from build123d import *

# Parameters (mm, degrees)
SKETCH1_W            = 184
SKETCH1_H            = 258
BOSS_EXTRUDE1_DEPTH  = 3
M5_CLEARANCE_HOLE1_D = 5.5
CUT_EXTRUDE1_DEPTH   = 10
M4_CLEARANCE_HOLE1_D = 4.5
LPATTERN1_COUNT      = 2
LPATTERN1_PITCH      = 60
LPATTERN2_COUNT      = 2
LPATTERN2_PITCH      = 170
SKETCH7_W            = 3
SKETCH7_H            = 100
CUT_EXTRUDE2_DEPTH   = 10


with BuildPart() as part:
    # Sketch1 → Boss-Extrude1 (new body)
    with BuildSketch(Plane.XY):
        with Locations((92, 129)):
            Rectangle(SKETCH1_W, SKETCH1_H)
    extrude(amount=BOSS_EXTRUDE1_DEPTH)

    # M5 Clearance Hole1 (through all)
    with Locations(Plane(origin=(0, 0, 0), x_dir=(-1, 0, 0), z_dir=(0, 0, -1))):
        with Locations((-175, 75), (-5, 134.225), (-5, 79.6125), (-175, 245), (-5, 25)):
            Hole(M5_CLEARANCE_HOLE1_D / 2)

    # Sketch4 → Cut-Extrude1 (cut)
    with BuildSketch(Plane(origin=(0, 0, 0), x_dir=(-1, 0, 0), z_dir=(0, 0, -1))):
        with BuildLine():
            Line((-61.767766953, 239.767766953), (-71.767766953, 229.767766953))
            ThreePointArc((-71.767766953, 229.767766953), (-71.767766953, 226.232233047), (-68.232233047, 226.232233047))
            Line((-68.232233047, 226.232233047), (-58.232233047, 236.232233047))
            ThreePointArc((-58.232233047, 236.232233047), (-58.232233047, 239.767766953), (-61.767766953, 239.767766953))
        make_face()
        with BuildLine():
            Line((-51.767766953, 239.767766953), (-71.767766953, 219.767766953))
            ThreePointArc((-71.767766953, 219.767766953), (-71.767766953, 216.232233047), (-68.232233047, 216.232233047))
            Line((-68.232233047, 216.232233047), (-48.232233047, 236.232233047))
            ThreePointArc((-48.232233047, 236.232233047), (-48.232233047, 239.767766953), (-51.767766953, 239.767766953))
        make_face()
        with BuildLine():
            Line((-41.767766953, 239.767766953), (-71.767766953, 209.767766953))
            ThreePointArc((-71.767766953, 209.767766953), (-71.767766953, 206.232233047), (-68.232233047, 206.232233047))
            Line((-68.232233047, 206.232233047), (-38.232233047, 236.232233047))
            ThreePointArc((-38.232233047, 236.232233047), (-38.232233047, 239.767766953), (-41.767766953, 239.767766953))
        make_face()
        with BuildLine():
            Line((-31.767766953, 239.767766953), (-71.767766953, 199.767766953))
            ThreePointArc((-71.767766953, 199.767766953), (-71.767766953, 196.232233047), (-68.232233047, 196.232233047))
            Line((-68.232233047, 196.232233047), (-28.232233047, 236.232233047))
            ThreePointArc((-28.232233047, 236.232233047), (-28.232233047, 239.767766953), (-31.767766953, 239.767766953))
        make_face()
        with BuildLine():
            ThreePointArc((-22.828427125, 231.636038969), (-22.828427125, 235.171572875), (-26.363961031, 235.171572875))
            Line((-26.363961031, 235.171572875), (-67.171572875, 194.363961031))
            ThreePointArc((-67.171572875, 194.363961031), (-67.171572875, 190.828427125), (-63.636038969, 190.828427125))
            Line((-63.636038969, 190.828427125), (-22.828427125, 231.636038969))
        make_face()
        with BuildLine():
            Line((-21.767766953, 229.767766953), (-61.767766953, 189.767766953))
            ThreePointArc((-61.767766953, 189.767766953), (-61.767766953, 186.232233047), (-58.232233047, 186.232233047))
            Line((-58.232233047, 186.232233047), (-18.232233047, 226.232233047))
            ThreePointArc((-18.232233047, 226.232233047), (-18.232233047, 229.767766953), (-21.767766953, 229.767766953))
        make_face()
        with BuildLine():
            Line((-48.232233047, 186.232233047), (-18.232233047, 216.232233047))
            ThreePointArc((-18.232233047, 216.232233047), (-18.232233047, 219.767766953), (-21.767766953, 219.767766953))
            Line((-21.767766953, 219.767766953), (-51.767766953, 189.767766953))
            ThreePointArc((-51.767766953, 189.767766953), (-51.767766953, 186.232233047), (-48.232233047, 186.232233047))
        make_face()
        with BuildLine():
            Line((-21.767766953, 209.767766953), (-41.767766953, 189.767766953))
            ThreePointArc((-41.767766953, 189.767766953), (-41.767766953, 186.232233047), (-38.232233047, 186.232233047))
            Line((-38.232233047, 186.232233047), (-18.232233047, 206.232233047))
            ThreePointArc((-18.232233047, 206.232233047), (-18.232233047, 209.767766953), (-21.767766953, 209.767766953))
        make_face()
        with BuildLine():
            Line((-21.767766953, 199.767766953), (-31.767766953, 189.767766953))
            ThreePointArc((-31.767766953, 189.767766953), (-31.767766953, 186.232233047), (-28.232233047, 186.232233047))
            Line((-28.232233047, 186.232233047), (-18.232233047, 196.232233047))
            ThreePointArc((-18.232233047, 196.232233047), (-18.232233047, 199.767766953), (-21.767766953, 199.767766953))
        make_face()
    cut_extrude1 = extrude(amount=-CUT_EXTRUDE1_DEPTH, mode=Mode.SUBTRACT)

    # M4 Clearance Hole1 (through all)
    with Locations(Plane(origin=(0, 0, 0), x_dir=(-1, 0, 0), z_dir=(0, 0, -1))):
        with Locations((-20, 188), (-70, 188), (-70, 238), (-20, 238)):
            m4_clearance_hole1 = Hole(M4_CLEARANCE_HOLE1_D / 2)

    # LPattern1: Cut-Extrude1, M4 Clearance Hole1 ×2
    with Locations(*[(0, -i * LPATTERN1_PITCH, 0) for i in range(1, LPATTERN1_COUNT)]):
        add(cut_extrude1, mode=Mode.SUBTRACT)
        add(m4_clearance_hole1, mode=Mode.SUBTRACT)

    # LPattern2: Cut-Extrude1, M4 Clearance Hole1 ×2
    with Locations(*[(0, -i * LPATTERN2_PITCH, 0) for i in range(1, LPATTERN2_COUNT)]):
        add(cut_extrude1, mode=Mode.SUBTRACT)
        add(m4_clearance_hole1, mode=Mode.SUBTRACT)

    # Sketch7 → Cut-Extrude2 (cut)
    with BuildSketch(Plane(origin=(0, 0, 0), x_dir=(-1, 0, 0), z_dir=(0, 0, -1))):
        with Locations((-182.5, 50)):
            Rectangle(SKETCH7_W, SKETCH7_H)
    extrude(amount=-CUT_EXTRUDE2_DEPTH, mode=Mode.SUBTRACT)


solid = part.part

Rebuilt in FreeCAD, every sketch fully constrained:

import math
import FreeCAD as App
import Part
import Sketcher
from FreeCAD import Vector
Q = App.Units.Quantity


def add_polygon(sketch, points):
    """Adds a closed chain of lines whose ends are joined by coincident constraints."""
    first, n = sketch.GeometryCount, len(points)
    for a, b in zip(points, points[1:] + points[:1]):
        sketch.addGeometry(Part.LineSegment(App.Vector(*a, 0), App.Vector(*b, 0)), False)
    for i in range(n):
        sketch.addConstraint(Sketcher.Constraint("Coincident", first + i, 2, first + (i + 1) % n, 1))

doc = App.newDocument("Part")
params = doc.addObject("Spreadsheet::Sheet", "Params")
for row, (alias, value) in enumerate([
    ("sketch1_width", "184 mm"),
    ("sketch1_height", "258 mm"),
    ("pad1_length", "3 mm"),
    ("sketch2_diameter", "5.5 mm"),
    ("hole_diameter", "5.5 mm"),
    ("sketch3_radius", "2.5 mm"),
    ("pocket1_length", "10 mm"),
    ("sketch4_diameter", "4.5 mm"),
    ("hole2_diameter", "4.5 mm"),
    ("linearpattern_pitch", "60 mm"),
    ("linearpattern2_pitch", "170 mm"),
    ("sketch5_width", "3 mm"),
    ("sketch5_height", "100 mm"),
    ("pocket2_length", "10 mm"),
], start=1):
    params.set(f"A{row}", alias)
    params.set(f"B{row}", "=" + value)
    params.setAlias(f"B{row}", alias)

body = doc.addObject("PartDesign::Body", "Body")

# Sketch on XY plane
sketch1 = body.newObject("Sketcher::SketchObject", "Sketch")
sketch1.AttachmentSupport = (doc.getObject("XY_Plane"), [""])
sketch1.MapMode = "FlatFace"
add_polygon(sketch1, [(0, 258), (0, 0), (184, 0), (184, 258)])  # lines 0-3
sketch1.addConstraint(Sketcher.Constraint("Vertical", 0))
sketch1.addConstraint(Sketcher.Constraint("Horizontal", 1))
sketch1.addConstraint(Sketcher.Constraint("Vertical", 2))
sketch1.addConstraint(Sketcher.Constraint("Horizontal", 3))
sketch1.addConstraint(Sketcher.Constraint("Coincident", 0, 2, -1, 1))
sketch1.addConstraint(Sketcher.Constraint("DistanceX", 1, 1, 1, 2, 184.0))
sketch1.addConstraint(Sketcher.Constraint("DistanceY", 0, 2, 0, 1, 258.0))
sketch1.setExpression("Constraints[9]", "Params.sketch1_width")
sketch1.setExpression("Constraints[10]", "Params.sketch1_height")
pad1 = body.newObject("PartDesign::Pad", "Pad")
pad1.Profile = sketch1
pad1.setExpression("Length", "Params.pad1_length")

# Sketch on XY plane
sketch2 = body.newObject("Sketcher::SketchObject", "Sketch001")
sketch2.AttachmentSupport = (doc.getObject("XY_Plane"), [""])
sketch2.MapMode = "FlatFace"
sketch2.addGeometry(Part.Circle(Vector(175, 75, 0), Vector(0, 0, 1), 2.8), False)
sketch2.addGeometry(Part.Circle(Vector(5, 134.2, 0), Vector(0, 0, 1), 2.8), False)
sketch2.addGeometry(Part.Circle(Vector(5, 79.6, 0), Vector(0, 0, 1), 2.8), False)
sketch2.addGeometry(Part.Circle(Vector(175, 245, 0), Vector(0, 0, 1), 2.8), False)
sketch2.addGeometry(Part.Circle(Vector(5, 25, 0), Vector(0, 0, 1), 2.8), False)
sketch2.addConstraint(Sketcher.Constraint("Equal", 0, 1))
sketch2.addConstraint(Sketcher.Constraint("Equal", 1, 2))
sketch2.addConstraint(Sketcher.Constraint("Equal", 2, 3))
sketch2.addConstraint(Sketcher.Constraint("Equal", 3, 4))
sketch2.addConstraint(Sketcher.Constraint("Vertical", 1, 3, 2, 3))
sketch2.addConstraint(Sketcher.Constraint("Vertical", 0, 3, 3, 3))
sketch2.addConstraint(Sketcher.Constraint("Vertical", 2, 3, 4, 3))
sketch2.addConstraint(Sketcher.Constraint("Diameter", 0, 5.5))
sketch2.addConstraint(Sketcher.Constraint("DistanceX", -1, 1, 0, 3, 175.0))
sketch2.addConstraint(Sketcher.Constraint("DistanceY", -1, 1, 0, 3, 75.0))
sketch2.addConstraint(Sketcher.Constraint("DistanceX", -1, 1, 1, 3, 5.0))
sketch2.addConstraint(Sketcher.Constraint("DistanceY", -1, 1, 3, 3, 245.0))
sketch2.addConstraint(Sketcher.Constraint("DistanceY", -1, 1, 4, 3, 25.0))
sketch2.addConstraint(Sketcher.Constraint("DistanceY", -1, 1, 1, 3, 134.225))
sketch2.addConstraint(Sketcher.Constraint("DistanceY", -1, 1, 2, 3, 79.6125))
sketch2.setExpression("Constraints[7]", "Params.sketch2_diameter")
doc.recompute()
hole = body.newObject("PartDesign::Hole", "Hole")
hole.Profile = sketch2
hole.ThreadType = "None"
hole.setExpression("Diameter", "Params.hole_diameter")
hole.DepthType = "ThroughAll"
hole.Reversed = True

# Sketch on XY plane
sketch3 = body.newObject("Sketcher::SketchObject", "Sketch002")
sketch3.AttachmentSupport = (doc.getObject("XY_Plane"), [""])
sketch3.MapMode = "FlatFace"
sketch3.addGeometry(Part.LineSegment(Vector(61.8, 239.8, 0), Vector(71.8, 229.8, 0)), False)
sketch3.addGeometry(Part.ArcOfCircle(Part.Circle(Vector(70, 228, 0), Vector(0, 0, 1), 2.5), math.radians(-135), math.radians(45)), False)
sketch3.addGeometry(Part.LineSegment(Vector(68.2, 226.2, 0), Vector(58.2, 236.2, 0)), False)
sketch3.addGeometry(Part.ArcOfCircle(Part.Circle(Vector(60, 238, 0), Vector(0, 0, 1), 2.5), math.radians(45), math.radians(225)), False)
sketch3.addGeometry(Part.LineSegment(Vector(51.8, 239.8, 0), Vector(71.8, 219.8, 0)), False)
sketch3.addGeometry(Part.ArcOfCircle(Part.Circle(Vector(70, 218, 0), Vector(0, 0, 1), 2.5), math.radians(-135), math.radians(45)), False)
sketch3.addGeometry(Part.LineSegment(Vector(68.2, 216.2, 0), Vector(48.2, 236.2, 0)), False)
sketch3.addGeometry(Part.ArcOfCircle(Part.Circle(Vector(50, 238, 0), Vector(0, 0, 1), 2.5), math.radians(45), math.radians(225)), False)
sketch3.addGeometry(Part.LineSegment(Vector(41.8, 239.8, 0), Vector(71.8, 209.8, 0)), False)
sketch3.addGeometry(Part.ArcOfCircle(Part.Circle(Vector(70, 208, 0), Vector(0, 0, 1), 2.5), math.radians(-135), math.radians(45)), False)
sketch3.addGeometry(Part.LineSegment(Vector(68.2, 206.2, 0), Vector(38.2, 236.2, 0)), False)
sketch3.addGeometry(Part.ArcOfCircle(Part.Circle(Vector(40, 238, 0), Vector(0, 0, 1), 2.5), math.radians(45), math.radians(225)), False)
sketch3.addGeometry(Part.LineSegment(Vector(31.8, 239.8, 0), Vector(71.8, 199.8, 0)), False)
sketch3.addGeometry(Part.ArcOfCircle(Part.Circle(Vector(70, 198, 0), Vector(0, 0, 1), 2.5), math.radians(-135), math.radians(45)), False)
sketch3.addGeometry(Part.LineSegment(Vector(68.2, 196.2, 0), Vector(28.2, 236.2, 0)), False)
sketch3.addGeometry(Part.ArcOfCircle(Part.Circle(Vector(30, 238, 0), Vector(0, 0, 1), 2.5), math.radians(45), math.radians(225)), False)
sketch3.addGeometry(Part.ArcOfCircle(Part.Circle(Vector(24.6, 233.4, 0), Vector(0, 0, 1), 2.5), math.radians(45), math.radians(225)), False)
sketch3.addGeometry(Part.LineSegment(Vector(26.4, 235.2, 0), Vector(67.2, 194.4, 0)), False)
sketch3.addGeometry(Part.ArcOfCircle(Part.Circle(Vector(65.4, 192.6, 0), Vector(0, 0, 1), 2.5), math.radians(-135), math.radians(45)), False)
sketch3.addGeometry(Part.LineSegment(Vector(63.6, 190.8, 0), Vector(22.8, 231.6, 0)), False)
sketch3.addGeometry(Part.LineSegment(Vector(21.8, 229.8, 0), Vector(61.8, 189.8, 0)), False)
sketch3.addGeometry(Part.ArcOfCircle(Part.Circle(Vector(60, 188, 0), Vector(0, 0, 1), 2.5), math.radians(-135), math.radians(45)), False)
sketch3.addGeometry(Part.LineSegment(Vector(58.2, 186.2, 0), Vector(18.2, 226.2, 0)), False)
sketch3.addGeometry(Part.ArcOfCircle(Part.Circle(Vector(20, 228, 0), Vector(0, 0, 1), 2.5), math.radians(45), math.radians(225)), False)
sketch3.addGeometry(Part.LineSegment(Vector(48.2, 186.2, 0), Vector(18.2, 216.2, 0)), False)
sketch3.addGeometry(Part.ArcOfCircle(Part.Circle(Vector(20, 218, 0), Vector(0, 0, 1), 2.5), math.radians(45), math.radians(225)), False)
sketch3.addGeometry(Part.LineSegment(Vector(21.8, 219.8, 0), Vector(51.8, 189.8, 0)), False)
sketch3.addGeometry(Part.ArcOfCircle(Part.Circle(Vector(50, 188, 0), Vector(0, 0, 1), 2.5), math.radians(-135), math.radians(45)), False)
sketch3.addGeometry(Part.LineSegment(Vector(21.8, 209.8, 0), Vector(41.8, 189.8, 0)), False)
sketch3.addGeometry(Part.ArcOfCircle(Part.Circle(Vector(40, 188, 0), Vector(0, 0, 1), 2.5), math.radians(-135), math.radians(45)), False)
sketch3.addGeometry(Part.LineSegment(Vector(38.2, 186.2, 0), Vector(18.2, 206.2, 0)), False)
sketch3.addGeometry(Part.ArcOfCircle(Part.Circle(Vector(20, 208, 0), Vector(0, 0, 1), 2.5), math.radians(45), math.radians(225)), False)
sketch3.addGeometry(Part.LineSegment(Vector(21.8, 199.8, 0), Vector(31.8, 189.8, 0)), False)
sketch3.addGeometry(Part.ArcOfCircle(Part.Circle(Vector(30, 188, 0), Vector(0, 0, 1), 2.5), math.radians(-135), math.radians(45)), False)
sketch3.addGeometry(Part.LineSegment(Vector(28.2, 186.2, 0), Vector(18.2, 196.2, 0)), False)
sketch3.addGeometry(Part.ArcOfCircle(Part.Circle(Vector(20, 198, 0), Vector(0, 0, 1), 2.5), math.radians(45), math.radians(225)), False)
sketch3.addConstraint(Sketcher.Constraint("Tangent", 0, 2, 1, 2))
sketch3.addConstraint(Sketcher.Constraint("Tangent", 1, 1, 2, 1))
sketch3.addConstraint(Sketcher.Constraint("Tangent", 2, 2, 3, 2))
sketch3.addConstraint(Sketcher.Constraint("Tangent", 3, 1, 0, 1))
sketch3.addConstraint(Sketcher.Constraint("Tangent", 4, 2, 5, 2))
sketch3.addConstraint(Sketcher.Constraint("Tangent", 5, 1, 6, 1))
sketch3.addConstraint(Sketcher.Constraint("Tangent", 6, 2, 7, 2))
sketch3.addConstraint(Sketcher.Constraint("Tangent", 7, 1, 4, 1))
sketch3.addConstraint(Sketcher.Constraint("Tangent", 8, 2, 9, 2))
sketch3.addConstraint(Sketcher.Constraint("Tangent", 9, 1, 10, 1))
sketch3.addConstraint(Sketcher.Constraint("Tangent", 10, 2, 11, 2))
sketch3.addConstraint(Sketcher.Constraint("Tangent", 11, 1, 8, 1))
sketch3.addConstraint(Sketcher.Constraint("Tangent", 12, 2, 13, 2))
sketch3.addConstraint(Sketcher.Constraint("Tangent", 13, 1, 14, 1))
sketch3.addConstraint(Sketcher.Constraint("Tangent", 14, 2, 15, 2))
sketch3.addConstraint(Sketcher.Constraint("Tangent", 15, 1, 12, 1))
sketch3.addConstraint(Sketcher.Constraint("Tangent", 16, 1, 17, 1))
sketch3.addConstraint(Sketcher.Constraint("Tangent", 17, 2, 18, 2))
sketch3.addConstraint(Sketcher.Constraint("Tangent", 18, 1, 19, 1))
sketch3.addConstraint(Sketcher.Constraint("Tangent", 19, 2, 16, 2))
sketch3.addConstraint(Sketcher.Constraint("Tangent", 20, 2, 21, 2))
sketch3.addConstraint(Sketcher.Constraint("Tangent", 21, 1, 22, 1))
sketch3.addConstraint(Sketcher.Constraint("Tangent", 22, 2, 23, 2))
sketch3.addConstraint(Sketcher.Constraint("Tangent", 23, 1, 20, 1))
sketch3.addConstraint(Sketcher.Constraint("Tangent", 24, 2, 25, 2))
sketch3.addConstraint(Sketcher.Constraint("Tangent", 25, 1, 26, 1))
sketch3.addConstraint(Sketcher.Constraint("Tangent", 26, 2, 27, 2))
sketch3.addConstraint(Sketcher.Constraint("Tangent", 27, 1, 24, 1))
sketch3.addConstraint(Sketcher.Constraint("Tangent", 28, 2, 29, 2))
sketch3.addConstraint(Sketcher.Constraint("Tangent", 29, 1, 30, 1))
sketch3.addConstraint(Sketcher.Constraint("Tangent", 30, 2, 31, 2))
sketch3.addConstraint(Sketcher.Constraint("Tangent", 31, 1, 28, 1))
sketch3.addConstraint(Sketcher.Constraint("Tangent", 32, 2, 33, 2))
sketch3.addConstraint(Sketcher.Constraint("Tangent", 33, 1, 34, 1))
sketch3.addConstraint(Sketcher.Constraint("Tangent", 34, 2, 35, 2))
sketch3.addConstraint(Sketcher.Constraint("Tangent", 35, 1, 32, 1))
sketch3.addConstraint(Sketcher.Constraint("Equal", 1, 3))
sketch3.addConstraint(Sketcher.Constraint("Equal", 3, 5))
sketch3.addConstraint(Sketcher.Constraint("Equal", 5, 7))
sketch3.addConstraint(Sketcher.Constraint("Equal", 7, 9))
sketch3.addConstraint(Sketcher.Constraint("Equal", 9, 11))
sketch3.addConstraint(Sketcher.Constraint("Equal", 11, 13))
sketch3.addConstraint(Sketcher.Constraint("Equal", 13, 15))
sketch3.addConstraint(Sketcher.Constraint("Equal", 15, 16))
sketch3.addConstraint(Sketcher.Constraint("Equal", 16, 18))
sketch3.addConstraint(Sketcher.Constraint("Equal", 18, 21))
sketch3.addConstraint(Sketcher.Constraint("Equal", 21, 23))
sketch3.addConstraint(Sketcher.Constraint("Equal", 23, 25))
sketch3.addConstraint(Sketcher.Constraint("Equal", 25, 27))
sketch3.addConstraint(Sketcher.Constraint("Equal", 27, 29))
sketch3.addConstraint(Sketcher.Constraint("Equal", 29, 31))
sketch3.addConstraint(Sketcher.Constraint("Equal", 31, 33))
sketch3.addConstraint(Sketcher.Constraint("Equal", 33, 35))
sketch3.addConstraint(Sketcher.Constraint("Parallel", 2, 4))
sketch3.addConstraint(Sketcher.Constraint("Parallel", 6, 8))
sketch3.addConstraint(Sketcher.Constraint("Parallel", 10, 12))
sketch3.addConstraint(Sketcher.Constraint("Parallel", 14, 17))
sketch3.addConstraint(Sketcher.Constraint("Parallel", 19, 20))
sketch3.addConstraint(Sketcher.Constraint("Parallel", 22, 24))
sketch3.addConstraint(Sketcher.Constraint("Parallel", 26, 28))
sketch3.addConstraint(Sketcher.Constraint("Parallel", 30, 32))
sketch3.addConstraint(Sketcher.Constraint("Horizontal", 3, 3, 7, 3))
sketch3.addConstraint(Sketcher.Constraint("Horizontal", 7, 3, 11, 3))
sketch3.addConstraint(Sketcher.Constraint("Horizontal", 11, 3, 15, 3))
sketch3.addConstraint(Sketcher.Constraint("Horizontal", 1, 3, 23, 3))
sketch3.addConstraint(Sketcher.Constraint("Horizontal", 5, 3, 25, 3))
sketch3.addConstraint(Sketcher.Constraint("Horizontal", 21, 3, 27, 3))
sketch3.addConstraint(Sketcher.Constraint("Horizontal", 27, 3, 29, 3))
sketch3.addConstraint(Sketcher.Constraint("Horizontal", 9, 3, 31, 3))
sketch3.addConstraint(Sketcher.Constraint("Horizontal", 29, 3, 33, 3))
sketch3.addConstraint(Sketcher.Constraint("Horizontal", 13, 3, 35, 3))
sketch3.addConstraint(Sketcher.Constraint("Vertical", 1, 3, 5, 3))
sketch3.addConstraint(Sketcher.Constraint("Vertical", 5, 3, 9, 3))
sketch3.addConstraint(Sketcher.Constraint("Vertical", 9, 3, 13, 3))
sketch3.addConstraint(Sketcher.Constraint("Vertical", 3, 3, 21, 3))
sketch3.addConstraint(Sketcher.Constraint("Vertical", 23, 3, 25, 3))
sketch3.addConstraint(Sketcher.Constraint("Vertical", 11, 3, 29, 3))
sketch3.addConstraint(Sketcher.Constraint("Vertical", 15, 3, 33, 3))
sketch3.addConstraint(Sketcher.Constraint("Equal", 14, 20))
sketch3.addConstraint(Sketcher.Constraint("Equal", 10, 24))
sketch3.addConstraint(Sketcher.Constraint("Radius", 1, 2.5))
sketch3.addConstraint(Sketcher.Constraint("Angle", 0, Q("-45 deg")))
sketch3.addConstraint(Sketcher.Constraint("DistanceX", -1, 1, 1, 3, 70.0))
sketch3.addConstraint(Sketcher.Constraint("DistanceY", -1, 1, 1, 3, 228.0))
sketch3.addConstraint(Sketcher.Constraint("DistanceX", -1, 1, 3, 3, 60.0))
sketch3.addConstraint(Sketcher.Constraint("DistanceY", -1, 1, 5, 3, 218.0))
sketch3.addConstraint(Sketcher.Constraint("DistanceY", -1, 1, 9, 3, 208.0))
sketch3.addConstraint(Sketcher.Constraint("Distance", 17, 57.710678))
sketch3.addConstraint(Sketcher.Constraint("DistanceX", -1, 1, 16, 1, 26.363961))
sketch3.addConstraint(Sketcher.Constraint("DistanceY", -1, 1, 17, 2, 194.363961))
sketch3.setExpression("Constraints[80]", "Params.sketch3_radius")
pocket1 = body.newObject("PartDesign::Pocket", "Pocket")
pocket1.Profile = sketch3
pocket1.setExpression("Length", "Params.pocket1_length")
pocket1.Reversed = True

# Sketch on XY plane
sketch4 = body.newObject("Sketcher::SketchObject", "Sketch003")
sketch4.AttachmentSupport = (doc.getObject("XY_Plane"), [""])
sketch4.MapMode = "FlatFace"
sketch4.addGeometry(Part.Circle(Vector(20, 188, 0), Vector(0, 0, 1), 2.2), False)
sketch4.addGeometry(Part.Circle(Vector(70, 188, 0), Vector(0, 0, 1), 2.2), False)
sketch4.addGeometry(Part.Circle(Vector(70, 238, 0), Vector(0, 0, 1), 2.2), False)
sketch4.addGeometry(Part.Circle(Vector(20, 238, 0), Vector(0, 0, 1), 2.2), False)
sketch4.addConstraint(Sketcher.Constraint("Equal", 0, 1))
sketch4.addConstraint(Sketcher.Constraint("Equal", 1, 2))
sketch4.addConstraint(Sketcher.Constraint("Equal", 2, 3))
sketch4.addConstraint(Sketcher.Constraint("Horizontal", 0, 3, 1, 3))
sketch4.addConstraint(Sketcher.Constraint("Horizontal", 2, 3, 3, 3))
sketch4.addConstraint(Sketcher.Constraint("Vertical", 1, 3, 2, 3))
sketch4.addConstraint(Sketcher.Constraint("Vertical", 0, 3, 3, 3))
sketch4.addConstraint(Sketcher.Constraint("Diameter", 0, 4.5))
sketch4.addConstraint(Sketcher.Constraint("DistanceX", -1, 1, 0, 3, 20.0))
sketch4.addConstraint(Sketcher.Constraint("DistanceY", -1, 1, 0, 3, 188.0))
sketch4.addConstraint(Sketcher.Constraint("DistanceX", -1, 1, 1, 3, 70.0))
sketch4.addConstraint(Sketcher.Constraint("DistanceY", -1, 1, 2, 3, 238.0))
sketch4.setExpression("Constraints[7]", "Params.sketch4_diameter")
doc.recompute()
hole2 = body.newObject("PartDesign::Hole", "Hole001")
hole2.Profile = sketch4
hole2.ThreadType = "None"
hole2.setExpression("Diameter", "Params.hole2_diameter")
hole2.DepthType = "ThroughAll"
hole2.Reversed = True
doc.recompute()

linearpattern = body.newObject("PartDesign::LinearPattern", "LinearPattern")
linearpattern.Originals = [pocket1, hole2]
linearpattern.Direction = (doc.getObject("Y_Axis"), [""])
linearpattern.Mode = "offset"
linearpattern.setExpression("Offset", "Params.linearpattern_pitch")
linearpattern.Occurrences = 2
linearpattern.Reversed = True
body.Tip = linearpattern
doc.recompute()

linearpattern2 = body.newObject("PartDesign::LinearPattern", "LinearPattern001")
linearpattern2.Originals = [pocket1, hole2]
linearpattern2.Direction = (doc.getObject("Y_Axis"), [""])
linearpattern2.Mode = "offset"
linearpattern2.setExpression("Offset", "Params.linearpattern2_pitch")
linearpattern2.Occurrences = 2
linearpattern2.Reversed = True
body.Tip = linearpattern2

# Sketch on XY plane
sketch5 = body.newObject("Sketcher::SketchObject", "Sketch004")
sketch5.AttachmentSupport = (doc.getObject("XY_Plane"), [""])
sketch5.MapMode = "FlatFace"
add_polygon(sketch5, [(184, 100), (184, 0), (181, 0), (181, 100)])  # lines 0-3
sketch5.addConstraint(Sketcher.Constraint("Vertical", 0))
sketch5.addConstraint(Sketcher.Constraint("Horizontal", 1))
sketch5.addConstraint(Sketcher.Constraint("Vertical", 2))
sketch5.addConstraint(Sketcher.Constraint("Horizontal", 3))
sketch5.addConstraint(Sketcher.Constraint("PointOnObject", 0, 2, -1))
sketch5.addConstraint(Sketcher.Constraint("DistanceX", 1, 2, 1, 1, 3.0))
sketch5.addConstraint(Sketcher.Constraint("DistanceY", 0, 2, 0, 1, 100.0))
sketch5.addConstraint(Sketcher.Constraint("DistanceX", -1, 1, 0, 2, 184.0))
sketch5.setExpression("Constraints[9]", "Params.sketch5_width")
sketch5.setExpression("Constraints[10]", "Params.sketch5_height")
pocket2 = body.newObject("PartDesign::Pocket", "Pocket001")
pocket2.Profile = sketch5
pocket2.setExpression("Length", "Params.pocket2_length")
pocket2.Reversed = True

doc.recompute()
